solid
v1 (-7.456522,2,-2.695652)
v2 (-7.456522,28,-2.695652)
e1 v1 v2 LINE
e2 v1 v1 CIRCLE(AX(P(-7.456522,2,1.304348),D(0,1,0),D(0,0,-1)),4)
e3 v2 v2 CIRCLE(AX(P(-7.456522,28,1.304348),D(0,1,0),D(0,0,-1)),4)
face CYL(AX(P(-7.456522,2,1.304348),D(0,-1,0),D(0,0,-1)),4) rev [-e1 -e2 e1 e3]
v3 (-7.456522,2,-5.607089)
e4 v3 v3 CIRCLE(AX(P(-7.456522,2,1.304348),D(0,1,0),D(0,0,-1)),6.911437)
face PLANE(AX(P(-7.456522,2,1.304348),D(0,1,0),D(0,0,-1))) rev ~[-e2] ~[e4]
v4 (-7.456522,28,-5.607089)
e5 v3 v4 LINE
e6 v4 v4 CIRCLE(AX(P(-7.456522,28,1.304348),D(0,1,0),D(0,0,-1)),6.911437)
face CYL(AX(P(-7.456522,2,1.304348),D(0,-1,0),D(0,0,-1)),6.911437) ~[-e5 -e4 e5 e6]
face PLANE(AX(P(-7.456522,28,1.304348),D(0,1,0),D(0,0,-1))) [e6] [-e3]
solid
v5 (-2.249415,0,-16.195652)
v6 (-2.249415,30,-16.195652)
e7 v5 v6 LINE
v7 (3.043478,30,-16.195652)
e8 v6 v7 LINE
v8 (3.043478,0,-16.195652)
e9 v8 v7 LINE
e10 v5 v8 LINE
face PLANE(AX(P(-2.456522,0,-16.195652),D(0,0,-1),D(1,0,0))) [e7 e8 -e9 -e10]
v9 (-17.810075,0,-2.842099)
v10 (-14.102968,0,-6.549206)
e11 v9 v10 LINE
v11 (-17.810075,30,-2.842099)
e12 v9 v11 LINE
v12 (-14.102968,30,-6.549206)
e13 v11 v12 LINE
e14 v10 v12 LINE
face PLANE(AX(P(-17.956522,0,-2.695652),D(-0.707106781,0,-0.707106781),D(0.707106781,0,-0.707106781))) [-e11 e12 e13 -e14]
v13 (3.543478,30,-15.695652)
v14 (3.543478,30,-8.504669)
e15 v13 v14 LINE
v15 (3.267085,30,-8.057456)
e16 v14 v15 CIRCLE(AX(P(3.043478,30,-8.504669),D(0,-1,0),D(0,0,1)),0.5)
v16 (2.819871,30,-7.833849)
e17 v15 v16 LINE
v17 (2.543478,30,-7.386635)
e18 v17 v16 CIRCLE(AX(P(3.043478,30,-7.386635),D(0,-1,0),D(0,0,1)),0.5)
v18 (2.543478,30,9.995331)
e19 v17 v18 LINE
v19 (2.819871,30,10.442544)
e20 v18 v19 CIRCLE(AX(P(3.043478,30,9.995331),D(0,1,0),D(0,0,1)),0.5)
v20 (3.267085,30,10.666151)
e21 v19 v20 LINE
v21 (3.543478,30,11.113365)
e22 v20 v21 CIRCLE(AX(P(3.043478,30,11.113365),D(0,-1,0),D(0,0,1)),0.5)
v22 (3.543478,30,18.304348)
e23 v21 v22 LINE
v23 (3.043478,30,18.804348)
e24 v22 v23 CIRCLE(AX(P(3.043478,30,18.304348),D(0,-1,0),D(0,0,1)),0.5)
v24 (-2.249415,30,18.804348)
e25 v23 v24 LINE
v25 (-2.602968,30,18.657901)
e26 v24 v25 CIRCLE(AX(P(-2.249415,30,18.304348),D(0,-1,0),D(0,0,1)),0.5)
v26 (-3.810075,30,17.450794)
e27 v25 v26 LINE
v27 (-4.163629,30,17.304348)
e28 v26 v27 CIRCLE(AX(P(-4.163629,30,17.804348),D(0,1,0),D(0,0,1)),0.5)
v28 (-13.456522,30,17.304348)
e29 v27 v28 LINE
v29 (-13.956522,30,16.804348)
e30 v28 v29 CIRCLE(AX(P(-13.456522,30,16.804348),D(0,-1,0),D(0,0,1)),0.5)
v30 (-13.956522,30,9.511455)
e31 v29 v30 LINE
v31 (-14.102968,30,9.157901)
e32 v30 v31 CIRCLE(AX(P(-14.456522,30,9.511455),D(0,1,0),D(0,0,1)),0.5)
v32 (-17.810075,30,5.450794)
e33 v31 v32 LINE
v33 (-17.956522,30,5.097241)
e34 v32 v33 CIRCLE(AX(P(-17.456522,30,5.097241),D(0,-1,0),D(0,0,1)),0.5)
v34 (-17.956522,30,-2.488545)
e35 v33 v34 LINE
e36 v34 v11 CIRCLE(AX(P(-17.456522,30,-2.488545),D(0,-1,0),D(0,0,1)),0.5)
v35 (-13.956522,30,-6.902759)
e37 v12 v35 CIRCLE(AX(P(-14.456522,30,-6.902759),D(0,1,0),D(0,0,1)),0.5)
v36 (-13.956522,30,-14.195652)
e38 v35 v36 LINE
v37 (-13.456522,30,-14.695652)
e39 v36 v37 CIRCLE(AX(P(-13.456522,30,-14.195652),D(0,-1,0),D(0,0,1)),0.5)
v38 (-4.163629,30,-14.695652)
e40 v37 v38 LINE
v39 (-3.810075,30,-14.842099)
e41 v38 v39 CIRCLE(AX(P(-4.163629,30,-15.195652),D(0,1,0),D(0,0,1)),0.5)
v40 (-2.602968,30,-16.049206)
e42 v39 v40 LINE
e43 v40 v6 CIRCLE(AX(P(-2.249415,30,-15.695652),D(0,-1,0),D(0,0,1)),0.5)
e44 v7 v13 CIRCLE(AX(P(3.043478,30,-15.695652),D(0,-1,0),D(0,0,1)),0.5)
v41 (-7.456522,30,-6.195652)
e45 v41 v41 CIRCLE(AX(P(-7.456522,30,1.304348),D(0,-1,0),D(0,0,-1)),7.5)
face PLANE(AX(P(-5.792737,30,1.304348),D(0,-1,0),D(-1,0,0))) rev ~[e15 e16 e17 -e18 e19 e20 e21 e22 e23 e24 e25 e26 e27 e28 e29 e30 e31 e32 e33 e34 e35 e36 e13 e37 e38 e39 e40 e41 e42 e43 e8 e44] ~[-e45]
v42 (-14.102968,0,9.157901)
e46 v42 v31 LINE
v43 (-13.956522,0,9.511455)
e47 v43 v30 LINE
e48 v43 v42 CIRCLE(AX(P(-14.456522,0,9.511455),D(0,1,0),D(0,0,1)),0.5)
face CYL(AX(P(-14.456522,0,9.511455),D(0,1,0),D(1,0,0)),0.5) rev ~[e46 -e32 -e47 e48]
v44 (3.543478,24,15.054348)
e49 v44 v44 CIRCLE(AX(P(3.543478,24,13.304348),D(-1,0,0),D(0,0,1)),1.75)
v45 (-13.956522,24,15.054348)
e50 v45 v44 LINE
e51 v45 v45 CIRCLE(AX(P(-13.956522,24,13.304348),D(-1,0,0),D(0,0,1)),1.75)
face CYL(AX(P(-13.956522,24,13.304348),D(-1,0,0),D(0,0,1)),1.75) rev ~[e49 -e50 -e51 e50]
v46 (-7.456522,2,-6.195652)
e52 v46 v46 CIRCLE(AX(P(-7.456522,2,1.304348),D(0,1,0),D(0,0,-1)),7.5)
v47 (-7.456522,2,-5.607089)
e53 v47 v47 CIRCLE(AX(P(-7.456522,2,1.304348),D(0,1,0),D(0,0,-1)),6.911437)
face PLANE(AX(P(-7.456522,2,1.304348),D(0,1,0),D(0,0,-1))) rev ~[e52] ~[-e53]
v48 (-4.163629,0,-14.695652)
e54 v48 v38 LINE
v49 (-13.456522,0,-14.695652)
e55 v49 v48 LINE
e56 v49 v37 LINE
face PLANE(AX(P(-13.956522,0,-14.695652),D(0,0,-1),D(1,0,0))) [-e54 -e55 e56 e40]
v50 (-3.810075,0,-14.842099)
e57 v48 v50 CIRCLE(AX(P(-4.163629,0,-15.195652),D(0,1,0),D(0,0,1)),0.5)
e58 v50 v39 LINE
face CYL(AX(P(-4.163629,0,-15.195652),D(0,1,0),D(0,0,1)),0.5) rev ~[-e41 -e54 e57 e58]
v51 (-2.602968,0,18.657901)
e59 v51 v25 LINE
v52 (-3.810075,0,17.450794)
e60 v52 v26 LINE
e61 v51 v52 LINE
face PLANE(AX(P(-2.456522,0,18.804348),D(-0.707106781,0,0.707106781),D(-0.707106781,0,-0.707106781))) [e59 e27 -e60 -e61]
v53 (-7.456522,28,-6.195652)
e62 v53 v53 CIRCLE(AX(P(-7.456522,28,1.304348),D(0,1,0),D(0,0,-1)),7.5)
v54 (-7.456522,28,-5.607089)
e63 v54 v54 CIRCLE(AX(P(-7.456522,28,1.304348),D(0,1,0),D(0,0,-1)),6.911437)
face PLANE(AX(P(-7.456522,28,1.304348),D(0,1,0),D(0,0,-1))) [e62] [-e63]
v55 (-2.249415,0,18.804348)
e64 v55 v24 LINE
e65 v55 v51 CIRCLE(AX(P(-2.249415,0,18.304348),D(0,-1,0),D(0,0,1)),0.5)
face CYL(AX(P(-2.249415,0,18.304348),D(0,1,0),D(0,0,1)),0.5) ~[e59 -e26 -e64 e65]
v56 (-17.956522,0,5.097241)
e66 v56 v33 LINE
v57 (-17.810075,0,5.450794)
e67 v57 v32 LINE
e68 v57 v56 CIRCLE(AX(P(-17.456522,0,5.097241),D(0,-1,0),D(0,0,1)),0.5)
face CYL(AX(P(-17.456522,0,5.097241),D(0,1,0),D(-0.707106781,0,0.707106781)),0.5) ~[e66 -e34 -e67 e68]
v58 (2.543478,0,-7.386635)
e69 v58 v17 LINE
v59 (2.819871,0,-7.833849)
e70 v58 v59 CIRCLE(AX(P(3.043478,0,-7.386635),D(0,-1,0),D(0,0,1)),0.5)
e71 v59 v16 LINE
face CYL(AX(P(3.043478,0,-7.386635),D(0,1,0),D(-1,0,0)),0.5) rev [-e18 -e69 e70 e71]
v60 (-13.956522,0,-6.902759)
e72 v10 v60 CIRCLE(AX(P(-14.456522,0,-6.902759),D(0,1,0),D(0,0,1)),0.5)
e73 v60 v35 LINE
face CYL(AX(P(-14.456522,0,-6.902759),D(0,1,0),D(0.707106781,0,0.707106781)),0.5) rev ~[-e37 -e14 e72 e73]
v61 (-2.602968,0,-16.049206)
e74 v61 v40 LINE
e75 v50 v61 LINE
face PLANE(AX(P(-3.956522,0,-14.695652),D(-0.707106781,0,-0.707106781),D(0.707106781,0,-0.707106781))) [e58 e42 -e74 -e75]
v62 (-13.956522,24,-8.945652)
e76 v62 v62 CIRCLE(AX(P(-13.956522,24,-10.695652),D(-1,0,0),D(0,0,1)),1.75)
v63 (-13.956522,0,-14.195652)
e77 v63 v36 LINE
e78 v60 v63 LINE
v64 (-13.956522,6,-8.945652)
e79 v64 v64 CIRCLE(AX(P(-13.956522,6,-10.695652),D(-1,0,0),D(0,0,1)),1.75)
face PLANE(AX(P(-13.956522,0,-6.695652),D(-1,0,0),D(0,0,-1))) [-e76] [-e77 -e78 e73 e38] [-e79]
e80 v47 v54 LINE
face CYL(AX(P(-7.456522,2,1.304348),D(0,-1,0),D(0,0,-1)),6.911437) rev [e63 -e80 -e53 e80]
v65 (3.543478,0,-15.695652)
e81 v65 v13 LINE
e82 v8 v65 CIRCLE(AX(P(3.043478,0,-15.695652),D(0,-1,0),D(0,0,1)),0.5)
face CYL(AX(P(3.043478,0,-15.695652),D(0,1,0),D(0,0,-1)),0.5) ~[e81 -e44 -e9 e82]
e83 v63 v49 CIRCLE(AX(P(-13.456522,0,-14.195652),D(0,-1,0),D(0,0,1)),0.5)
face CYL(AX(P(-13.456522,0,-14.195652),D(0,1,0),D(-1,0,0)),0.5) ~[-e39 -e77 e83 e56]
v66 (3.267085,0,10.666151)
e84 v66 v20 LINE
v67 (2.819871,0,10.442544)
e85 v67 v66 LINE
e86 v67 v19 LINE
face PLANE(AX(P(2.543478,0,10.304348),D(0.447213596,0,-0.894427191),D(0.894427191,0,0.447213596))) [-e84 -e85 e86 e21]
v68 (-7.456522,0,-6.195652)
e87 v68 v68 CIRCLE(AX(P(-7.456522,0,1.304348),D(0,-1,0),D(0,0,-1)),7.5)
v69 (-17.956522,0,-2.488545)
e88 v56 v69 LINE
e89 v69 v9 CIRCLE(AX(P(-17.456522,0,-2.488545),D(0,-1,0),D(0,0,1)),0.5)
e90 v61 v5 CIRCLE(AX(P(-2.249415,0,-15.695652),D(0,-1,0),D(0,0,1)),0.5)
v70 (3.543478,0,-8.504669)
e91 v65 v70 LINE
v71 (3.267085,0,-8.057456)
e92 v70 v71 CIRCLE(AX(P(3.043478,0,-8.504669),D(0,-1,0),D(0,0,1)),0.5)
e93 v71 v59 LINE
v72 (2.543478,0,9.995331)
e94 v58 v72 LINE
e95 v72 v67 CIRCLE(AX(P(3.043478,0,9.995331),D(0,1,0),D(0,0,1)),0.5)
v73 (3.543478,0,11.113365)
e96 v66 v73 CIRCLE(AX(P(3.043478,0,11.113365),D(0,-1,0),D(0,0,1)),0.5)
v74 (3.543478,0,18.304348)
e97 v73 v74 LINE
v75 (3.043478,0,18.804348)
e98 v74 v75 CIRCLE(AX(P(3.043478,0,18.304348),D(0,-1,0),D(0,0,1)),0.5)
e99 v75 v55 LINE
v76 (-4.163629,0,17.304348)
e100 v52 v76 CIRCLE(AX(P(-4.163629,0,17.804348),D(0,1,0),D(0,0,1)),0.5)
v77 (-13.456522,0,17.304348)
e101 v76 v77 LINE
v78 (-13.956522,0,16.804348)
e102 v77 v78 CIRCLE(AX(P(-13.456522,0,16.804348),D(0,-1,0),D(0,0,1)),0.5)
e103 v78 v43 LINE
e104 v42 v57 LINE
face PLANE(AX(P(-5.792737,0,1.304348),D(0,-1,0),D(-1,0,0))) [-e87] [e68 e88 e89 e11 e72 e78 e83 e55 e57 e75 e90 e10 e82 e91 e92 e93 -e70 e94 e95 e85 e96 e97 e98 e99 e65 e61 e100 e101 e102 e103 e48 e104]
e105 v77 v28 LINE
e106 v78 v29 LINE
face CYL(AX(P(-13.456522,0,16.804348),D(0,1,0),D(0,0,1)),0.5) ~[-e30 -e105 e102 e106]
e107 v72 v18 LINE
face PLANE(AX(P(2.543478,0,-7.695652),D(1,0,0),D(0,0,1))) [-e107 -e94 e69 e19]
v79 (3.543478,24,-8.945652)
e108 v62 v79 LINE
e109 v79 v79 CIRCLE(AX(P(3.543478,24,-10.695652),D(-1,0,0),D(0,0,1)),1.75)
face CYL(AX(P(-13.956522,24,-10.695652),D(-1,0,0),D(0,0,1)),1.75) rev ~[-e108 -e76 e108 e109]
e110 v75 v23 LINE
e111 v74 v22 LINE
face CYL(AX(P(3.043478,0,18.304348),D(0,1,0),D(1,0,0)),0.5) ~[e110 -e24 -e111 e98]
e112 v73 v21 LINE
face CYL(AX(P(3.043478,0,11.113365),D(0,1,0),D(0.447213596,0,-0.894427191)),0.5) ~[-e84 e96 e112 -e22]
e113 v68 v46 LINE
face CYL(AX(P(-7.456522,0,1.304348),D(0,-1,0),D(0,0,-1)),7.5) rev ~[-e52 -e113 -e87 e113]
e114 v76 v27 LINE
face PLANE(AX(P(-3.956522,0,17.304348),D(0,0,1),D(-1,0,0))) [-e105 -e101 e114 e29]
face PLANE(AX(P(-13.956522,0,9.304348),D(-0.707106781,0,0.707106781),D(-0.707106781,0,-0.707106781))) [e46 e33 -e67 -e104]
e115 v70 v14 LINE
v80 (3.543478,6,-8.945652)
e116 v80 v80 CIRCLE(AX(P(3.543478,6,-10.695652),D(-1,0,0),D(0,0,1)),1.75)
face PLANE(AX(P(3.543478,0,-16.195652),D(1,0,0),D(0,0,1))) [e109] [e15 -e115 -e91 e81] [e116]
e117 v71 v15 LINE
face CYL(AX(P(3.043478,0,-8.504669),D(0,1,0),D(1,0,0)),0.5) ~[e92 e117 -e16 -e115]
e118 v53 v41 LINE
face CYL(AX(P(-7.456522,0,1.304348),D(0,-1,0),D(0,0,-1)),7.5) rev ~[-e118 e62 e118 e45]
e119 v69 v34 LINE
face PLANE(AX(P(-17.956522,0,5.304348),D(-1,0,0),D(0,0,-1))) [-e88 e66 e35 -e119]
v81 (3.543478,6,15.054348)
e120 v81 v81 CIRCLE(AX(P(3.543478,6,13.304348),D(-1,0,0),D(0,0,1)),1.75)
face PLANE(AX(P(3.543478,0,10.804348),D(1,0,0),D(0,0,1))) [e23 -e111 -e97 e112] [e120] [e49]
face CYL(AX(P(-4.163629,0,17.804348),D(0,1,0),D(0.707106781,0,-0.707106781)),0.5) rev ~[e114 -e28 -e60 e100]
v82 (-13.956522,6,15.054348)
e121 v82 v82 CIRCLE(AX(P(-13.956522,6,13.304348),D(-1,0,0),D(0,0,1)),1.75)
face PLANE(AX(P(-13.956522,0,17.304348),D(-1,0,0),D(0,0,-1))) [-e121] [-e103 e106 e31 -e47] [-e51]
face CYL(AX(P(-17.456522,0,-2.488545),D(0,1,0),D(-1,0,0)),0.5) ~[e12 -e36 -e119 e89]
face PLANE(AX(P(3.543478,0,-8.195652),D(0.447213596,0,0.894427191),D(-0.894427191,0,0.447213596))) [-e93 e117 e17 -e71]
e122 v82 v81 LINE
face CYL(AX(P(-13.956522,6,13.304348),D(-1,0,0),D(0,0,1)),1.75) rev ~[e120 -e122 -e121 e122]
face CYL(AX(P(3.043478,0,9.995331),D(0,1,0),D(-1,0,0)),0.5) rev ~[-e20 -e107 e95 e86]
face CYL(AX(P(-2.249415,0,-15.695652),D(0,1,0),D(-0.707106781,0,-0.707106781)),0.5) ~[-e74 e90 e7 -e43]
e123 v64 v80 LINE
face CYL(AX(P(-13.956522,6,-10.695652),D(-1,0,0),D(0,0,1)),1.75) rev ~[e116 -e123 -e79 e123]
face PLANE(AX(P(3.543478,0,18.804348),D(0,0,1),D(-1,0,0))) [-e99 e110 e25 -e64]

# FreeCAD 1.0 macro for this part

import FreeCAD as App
import Part
import Sketcher
from FreeCAD import Vector
Q = App.Units.Quantity


def edges_at(feature, points):
    """Names of the edges that pass closest to the given points."""
    edges = feature.Shape.Edges
    near = lambda p: min(range(len(edges)), key=lambda i: edges[i].distToShape(Part.Vertex(*p))[0])
    return sorted({f"Edge{near(p) + 1}" for p in points})

doc = App.newDocument("Part")
body = doc.addObject("PartDesign::Body", "Body")

# Sketch on XZ plane
sketch1 = doc.addObject("Sketcher::SketchObject", "Sketch")
body.addObject(sketch1)
sketch1.AttachmentSupport = (doc.XZ_Plane, [""])
sketch1.MapMode = "FlatFace"
sketch1.addGeometry([
    Part.LineSegment(Vector(2.5, 10.3, 0), Vector(2.5, -7.7, 0)),  # 0
    Part.LineSegment(Vector(2.5, -7.7, 0), Vector(3.5, -8.2, 0)),  # 1
    Part.LineSegment(Vector(3.5, -8.2, 0), Vector(3.5, -16.2, 0)),  # 2
    Part.LineSegment(Vector(3.5, -16.2, 0), Vector(-2.5, -16.2, 0)),  # 3
    Part.LineSegment(Vector(-2.5, -16.2, 0), Vector(-4, -14.7, 0)),  # 4
    Part.LineSegment(Vector(-4, -14.7, 0), Vector(-14, -14.7, 0)),  # 5
    Part.LineSegment(Vector(-14, -14.7, 0), Vector(-14, -6.7, 0)),  # 6
    Part.LineSegment(Vector(-14, -6.7, 0), Vector(-18, -2.7, 0)),  # 7
    Part.LineSegment(Vector(-18, -2.7, 0), Vector(-18, 5.3, 0)),  # 8
    Part.LineSegment(Vector(-18, 5.3, 0), Vector(-14, 9.3, 0)),  # 9
    Part.LineSegment(Vector(-14, 9.3, 0), Vector(-14, 17.3, 0)),  # 10
    Part.LineSegment(Vector(-14, 17.3, 0), Vector(-4, 17.3, 0)),  # 11
    Part.LineSegment(Vector(-4, 17.3, 0), Vector(-2.5, 18.8, 0)),  # 12
    Part.LineSegment(Vector(-2.5, 18.8, 0), Vector(3.5, 18.8, 0)),  # 13
    Part.LineSegment(Vector(3.5, 18.8, 0), Vector(3.5, 10.8, 0)),  # 14
    Part.LineSegment(Vector(3.5, 10.8, 0), Vector(2.5, 10.3, 0)),  # 15
], False)
sketch1.addConstraint([
    Sketcher.Constraint("Coincident", 0, 2, 1, 1),
    Sketcher.Constraint("Coincident", 1, 2, 2, 1),
    Sketcher.Constraint("Coincident", 2, 2, 3, 1),
    Sketcher.Constraint("Coincident", 3, 2, 4, 1),
    Sketcher.Constraint("Coincident", 4, 2, 5, 1),
    Sketcher.Constraint("Coincident", 5, 2, 6, 1),
    Sketcher.Constraint("Coincident", 6, 2, 7, 1),
    Sketcher.Constraint("Coincident", 7, 2, 8, 1),
    Sketcher.Constraint("Coincident", 8, 2, 9, 1),
    Sketcher.Constraint("Coincident", 9, 2, 10, 1),
    Sketcher.Constraint("Coincident", 10, 2, 11, 1),
    Sketcher.Constraint("Coincident", 11, 2, 12, 1),
    Sketcher.Constraint("Coincident", 12, 2, 13, 1),
    Sketcher.Constraint("Coincident", 13, 2, 14, 1),
    Sketcher.Constraint("Coincident", 14, 2, 15, 1),
    Sketcher.Constraint("Coincident", 15, 2, 0, 1),
    Sketcher.Constraint("Vertical", 0),
    Sketcher.Constraint("Vertical", 2),
    Sketcher.Constraint("Horizontal", 3),
    Sketcher.Constraint("Horizontal", 5),
    Sketcher.Constraint("Vertical", 6),
    Sketcher.Constraint("Vertical", 8),
    Sketcher.Constraint("Vertical", 10),
    Sketcher.Constraint("Horizontal", 11),
    Sketcher.Constraint("Horizontal", 13),
    Sketcher.Constraint("Vertical", 14),
    Sketcher.Constraint("Parallel", 4, 7),
    Sketcher.Constraint("Perpendicular", 7, 9),
    Sketcher.Constraint("Parallel", 9, 12),
    Sketcher.Constraint("Vertical", 6, 2, 9, 2),
    Sketcher.Constraint("Vertical", 4, 2, 11, 2),
    Sketcher.Constraint("Vertical", 3, 2, 12, 2),
    Sketcher.Constraint("Vertical", 2, 2, 13, 2),
    Sketcher.Constraint("Equal", 2, 6),
    Sketcher.Constraint("Equal", 6, 8),
    Sketcher.Constraint("Equal", 8, 10),
    Sketcher.Constraint("Equal", 10, 14),
    Sketcher.Constraint("Equal", 7, 9),
    Sketcher.Constraint("Equal", 1, 15),
    Sketcher.Constraint("DistanceX", 3, 2, 3, 1, Q("6 mm")),
    Sketcher.Constraint("DistanceX", 5, 2, 5, 1, Q("10 mm")),
    Sketcher.Constraint("DistanceY", 0, 2, 0, 1, Q("18 mm")),
    Sketcher.Constraint("DistanceY", 2, 2, 2, 1, Q("8 mm")),
    Sketcher.Constraint("DistanceX", 0, 2, 1, 2, Q("1 mm")),
    Sketcher.Constraint("DistanceY", 4, 2, 0, 2, Q("7 mm")),
    Sketcher.Constraint("DistanceY", 1, 2, 0, 2, Q("0.5 mm")),
    Sketcher.Constraint("DistanceX", -1, 1, 0, 2, Q("2.543478 mm")),
    Sketcher.Constraint("DistanceY", 0, 2, -1, 1, Q("7.695652 mm")),
])
pad1 = doc.addObject("PartDesign::Pad", "Pad")
body.addObject(pad1)
pad1.Profile = sketch1
pad1.Length = 30
pad1.Reversed = True
doc.recompute()

fillet = doc.addObject("PartDesign::Fillet", "Fillet")
body.addObject(fillet)
fillet.Base = (pad1, edges_at(pad1, [
    (2.543, 15, 10.304),
    (3.543, 15, 10.804),
    (3.543, 15, 18.804),
    (-2.457, 15, 18.804),
    (-3.957, 15, 17.304),
    (-13.957, 15, 17.304),
    (-13.957, 15, 9.304),
    (-17.957, 15, 5.304),
    (-17.957, 15, -2.696),
    (-13.957, 15, -6.696),
    (-13.957, 15, -14.696),
    (-3.957, 15, -14.696),
    (-2.457, 15, -16.196),
    (3.543, 15, -16.196),
    (3.543, 15, -8.196),
    (2.543, 15, -7.696),
]))
fillet.Radius = 0.5

# Sketch on XZ plane
sketch2 = doc.addObject("Sketcher::SketchObject", "Sketch001")
body.addObject(sketch2)
sketch2.AttachmentSupport = (doc.XZ_Plane, [""])
sketch2.MapMode = "FlatFace"
sketch2.addGeometry(Part.Circle(Vector(-7, 1, 0), Vector(0, 0, 1), 8), False)
sketch2.addConstraint([
    Sketcher.Constraint("Diameter", 0, Q("15 mm")),
    Sketcher.Constraint("DistanceX", 0, 3, -1, 1, Q("7.456522 mm")),
    Sketcher.Constraint("DistanceY", -1, 1, 0, 3, Q("1.304348 mm")),
])
pocket1 = doc.addObject("PartDesign::Pocket", "Pocket")
body.addObject(pocket1)
pocket1.Profile = sketch2
pocket1.Length = 30

# Sketch on XZ plane
sketch3 = doc.addObject("Sketcher::SketchObject", "Sketch002")
body.addObject(sketch3)
sketch3.AttachmentSupport = (doc.XZ_Plane, [""])
sketch3.MapMode = "FlatFace"
sketch3.AttachmentOffset = App.Placement(Vector(0, 0, -2), App.Rotation())
sketch3.addGeometry([
    Part.Circle(Vector(-7, 1, 0), Vector(0, 0, 1), 8),
    Part.Circle(Vector(-7, 1, 0), Vector(0, 0, 1), 7),
], False)
sketch3.addConstraint([
    Sketcher.Constraint("Coincident", 1, 3, 0, 3),
    Sketcher.Constraint("Diameter", 0, Q("15 mm")),
    Sketcher.Constraint("Diameter", 1, Q("13.822873 mm")),
    Sketcher.Constraint("DistanceX", 0, 3, -1, 1, Q("7.456522 mm")),
    Sketcher.Constraint("DistanceY", -1, 1, 0, 3, Q("1.304348 mm")),
])
pad2 = doc.addObject("PartDesign::Pad", "Pad001")
body.addObject(pad2)
pad2.Profile = sketch3
pad2.Length = 26
pad2.Reversed = True

# Sketch on YZ plane
sketch4 = doc.addObject("Sketcher::SketchObject", "Sketch003")
body.addObject(sketch4)
sketch4.AttachmentSupport = (doc.YZ_Plane, [""])
sketch4.MapMode = "FlatFace"
sketch4.AttachmentOffset = App.Placement(Vector(0, 0, -13.956522), App.Rotation())
sketch4.addGeometry([
    Part.Circle(Vector(24, 13.3, 0), Vector(0, 0, 1), 1.8),
    Part.Circle(Vector(6, 13.3, 0), Vector(0, 0, 1), 1.8),
    Part.Circle(Vector(6, -10.7, 0), Vector(0, 0, 1), 1.8),
    Part.Circle(Vector(24, -10.7, 0), Vector(0, 0, 1), 1.8),
], False)
sketch4.addConstraint([
    Sketcher.Constraint("Equal", 0, 1),
    Sketcher.Constraint("Equal", 1, 2),
    Sketcher.Constraint("Equal", 2, 3),
    Sketcher.Constraint("Horizontal", 0, 3, 1, 3),
    Sketcher.Constraint("Horizontal", 2, 3, 3, 3),
    Sketcher.Constraint("Vertical", 1, 3, 2, 3),
    Sketcher.Constraint("Vertical", 0, 3, 3, 3),
    Sketcher.Constraint("Diameter", 0, Q("3.5 mm")),
    Sketcher.Constraint("DistanceX", -1, 1, 0, 3, Q("24 mm")),
    Sketcher.Constraint("DistanceX", -1, 1, 1, 3, Q("6 mm")),
    Sketcher.Constraint("DistanceY", 2, 3, 1, 3, Q("24 mm")),
    Sketcher.Constraint("DistanceY", -1, 1, 0, 3, Q("13.304348 mm")),
])
pocket2 = doc.addObject("PartDesign::Pocket", "Pocket001")
body.addObject(pocket2)
pocket2.Profile = sketch4
pocket2.Length = 26
pocket2.Reversed = True
body2 = doc.addObject("PartDesign::Body", "Body001")

# Sketch on XZ plane
sketch5 = doc.addObject("Sketcher::SketchObject", "Sketch004")
body2.addObject(sketch5)
sketch5.AttachmentSupport = (doc.getObject("XZ_Plane001"), [""])
sketch5.MapMode = "FlatFace"
sketch5.AttachmentOffset = App.Placement(Vector(0, 0, -2), App.Rotation())
sketch5.addGeometry([
    Part.Circle(Vector(-7.5, 1.3, 0), Vector(0, 0, 1), 6.9),
    Part.Circle(Vector(-7.5, 1.3, 0), Vector(0, 0, 1), 4),
], False)
sketch5.addConstraint([
    Sketcher.Constraint("Coincident", 1, 3, 0, 3),
    Sketcher.Constraint("Diameter", 1, Q("8 mm")),
    Sketcher.Constraint("Diameter", 0, Q("13.822873 mm")),
    Sketcher.Constraint("DistanceX", 0, 3, -1, 1, Q("7.456522 mm")),
    Sketcher.Constraint("DistanceY", -1, 1, 0, 3, Q("1.304348 mm")),
])
pad3 = doc.addObject("PartDesign::Pad", "Pad002")
body2.addObject(pad3)
pad3.Profile = sketch5
pad3.Length = 26
pad3.Reversed = True

doc.recompute()
